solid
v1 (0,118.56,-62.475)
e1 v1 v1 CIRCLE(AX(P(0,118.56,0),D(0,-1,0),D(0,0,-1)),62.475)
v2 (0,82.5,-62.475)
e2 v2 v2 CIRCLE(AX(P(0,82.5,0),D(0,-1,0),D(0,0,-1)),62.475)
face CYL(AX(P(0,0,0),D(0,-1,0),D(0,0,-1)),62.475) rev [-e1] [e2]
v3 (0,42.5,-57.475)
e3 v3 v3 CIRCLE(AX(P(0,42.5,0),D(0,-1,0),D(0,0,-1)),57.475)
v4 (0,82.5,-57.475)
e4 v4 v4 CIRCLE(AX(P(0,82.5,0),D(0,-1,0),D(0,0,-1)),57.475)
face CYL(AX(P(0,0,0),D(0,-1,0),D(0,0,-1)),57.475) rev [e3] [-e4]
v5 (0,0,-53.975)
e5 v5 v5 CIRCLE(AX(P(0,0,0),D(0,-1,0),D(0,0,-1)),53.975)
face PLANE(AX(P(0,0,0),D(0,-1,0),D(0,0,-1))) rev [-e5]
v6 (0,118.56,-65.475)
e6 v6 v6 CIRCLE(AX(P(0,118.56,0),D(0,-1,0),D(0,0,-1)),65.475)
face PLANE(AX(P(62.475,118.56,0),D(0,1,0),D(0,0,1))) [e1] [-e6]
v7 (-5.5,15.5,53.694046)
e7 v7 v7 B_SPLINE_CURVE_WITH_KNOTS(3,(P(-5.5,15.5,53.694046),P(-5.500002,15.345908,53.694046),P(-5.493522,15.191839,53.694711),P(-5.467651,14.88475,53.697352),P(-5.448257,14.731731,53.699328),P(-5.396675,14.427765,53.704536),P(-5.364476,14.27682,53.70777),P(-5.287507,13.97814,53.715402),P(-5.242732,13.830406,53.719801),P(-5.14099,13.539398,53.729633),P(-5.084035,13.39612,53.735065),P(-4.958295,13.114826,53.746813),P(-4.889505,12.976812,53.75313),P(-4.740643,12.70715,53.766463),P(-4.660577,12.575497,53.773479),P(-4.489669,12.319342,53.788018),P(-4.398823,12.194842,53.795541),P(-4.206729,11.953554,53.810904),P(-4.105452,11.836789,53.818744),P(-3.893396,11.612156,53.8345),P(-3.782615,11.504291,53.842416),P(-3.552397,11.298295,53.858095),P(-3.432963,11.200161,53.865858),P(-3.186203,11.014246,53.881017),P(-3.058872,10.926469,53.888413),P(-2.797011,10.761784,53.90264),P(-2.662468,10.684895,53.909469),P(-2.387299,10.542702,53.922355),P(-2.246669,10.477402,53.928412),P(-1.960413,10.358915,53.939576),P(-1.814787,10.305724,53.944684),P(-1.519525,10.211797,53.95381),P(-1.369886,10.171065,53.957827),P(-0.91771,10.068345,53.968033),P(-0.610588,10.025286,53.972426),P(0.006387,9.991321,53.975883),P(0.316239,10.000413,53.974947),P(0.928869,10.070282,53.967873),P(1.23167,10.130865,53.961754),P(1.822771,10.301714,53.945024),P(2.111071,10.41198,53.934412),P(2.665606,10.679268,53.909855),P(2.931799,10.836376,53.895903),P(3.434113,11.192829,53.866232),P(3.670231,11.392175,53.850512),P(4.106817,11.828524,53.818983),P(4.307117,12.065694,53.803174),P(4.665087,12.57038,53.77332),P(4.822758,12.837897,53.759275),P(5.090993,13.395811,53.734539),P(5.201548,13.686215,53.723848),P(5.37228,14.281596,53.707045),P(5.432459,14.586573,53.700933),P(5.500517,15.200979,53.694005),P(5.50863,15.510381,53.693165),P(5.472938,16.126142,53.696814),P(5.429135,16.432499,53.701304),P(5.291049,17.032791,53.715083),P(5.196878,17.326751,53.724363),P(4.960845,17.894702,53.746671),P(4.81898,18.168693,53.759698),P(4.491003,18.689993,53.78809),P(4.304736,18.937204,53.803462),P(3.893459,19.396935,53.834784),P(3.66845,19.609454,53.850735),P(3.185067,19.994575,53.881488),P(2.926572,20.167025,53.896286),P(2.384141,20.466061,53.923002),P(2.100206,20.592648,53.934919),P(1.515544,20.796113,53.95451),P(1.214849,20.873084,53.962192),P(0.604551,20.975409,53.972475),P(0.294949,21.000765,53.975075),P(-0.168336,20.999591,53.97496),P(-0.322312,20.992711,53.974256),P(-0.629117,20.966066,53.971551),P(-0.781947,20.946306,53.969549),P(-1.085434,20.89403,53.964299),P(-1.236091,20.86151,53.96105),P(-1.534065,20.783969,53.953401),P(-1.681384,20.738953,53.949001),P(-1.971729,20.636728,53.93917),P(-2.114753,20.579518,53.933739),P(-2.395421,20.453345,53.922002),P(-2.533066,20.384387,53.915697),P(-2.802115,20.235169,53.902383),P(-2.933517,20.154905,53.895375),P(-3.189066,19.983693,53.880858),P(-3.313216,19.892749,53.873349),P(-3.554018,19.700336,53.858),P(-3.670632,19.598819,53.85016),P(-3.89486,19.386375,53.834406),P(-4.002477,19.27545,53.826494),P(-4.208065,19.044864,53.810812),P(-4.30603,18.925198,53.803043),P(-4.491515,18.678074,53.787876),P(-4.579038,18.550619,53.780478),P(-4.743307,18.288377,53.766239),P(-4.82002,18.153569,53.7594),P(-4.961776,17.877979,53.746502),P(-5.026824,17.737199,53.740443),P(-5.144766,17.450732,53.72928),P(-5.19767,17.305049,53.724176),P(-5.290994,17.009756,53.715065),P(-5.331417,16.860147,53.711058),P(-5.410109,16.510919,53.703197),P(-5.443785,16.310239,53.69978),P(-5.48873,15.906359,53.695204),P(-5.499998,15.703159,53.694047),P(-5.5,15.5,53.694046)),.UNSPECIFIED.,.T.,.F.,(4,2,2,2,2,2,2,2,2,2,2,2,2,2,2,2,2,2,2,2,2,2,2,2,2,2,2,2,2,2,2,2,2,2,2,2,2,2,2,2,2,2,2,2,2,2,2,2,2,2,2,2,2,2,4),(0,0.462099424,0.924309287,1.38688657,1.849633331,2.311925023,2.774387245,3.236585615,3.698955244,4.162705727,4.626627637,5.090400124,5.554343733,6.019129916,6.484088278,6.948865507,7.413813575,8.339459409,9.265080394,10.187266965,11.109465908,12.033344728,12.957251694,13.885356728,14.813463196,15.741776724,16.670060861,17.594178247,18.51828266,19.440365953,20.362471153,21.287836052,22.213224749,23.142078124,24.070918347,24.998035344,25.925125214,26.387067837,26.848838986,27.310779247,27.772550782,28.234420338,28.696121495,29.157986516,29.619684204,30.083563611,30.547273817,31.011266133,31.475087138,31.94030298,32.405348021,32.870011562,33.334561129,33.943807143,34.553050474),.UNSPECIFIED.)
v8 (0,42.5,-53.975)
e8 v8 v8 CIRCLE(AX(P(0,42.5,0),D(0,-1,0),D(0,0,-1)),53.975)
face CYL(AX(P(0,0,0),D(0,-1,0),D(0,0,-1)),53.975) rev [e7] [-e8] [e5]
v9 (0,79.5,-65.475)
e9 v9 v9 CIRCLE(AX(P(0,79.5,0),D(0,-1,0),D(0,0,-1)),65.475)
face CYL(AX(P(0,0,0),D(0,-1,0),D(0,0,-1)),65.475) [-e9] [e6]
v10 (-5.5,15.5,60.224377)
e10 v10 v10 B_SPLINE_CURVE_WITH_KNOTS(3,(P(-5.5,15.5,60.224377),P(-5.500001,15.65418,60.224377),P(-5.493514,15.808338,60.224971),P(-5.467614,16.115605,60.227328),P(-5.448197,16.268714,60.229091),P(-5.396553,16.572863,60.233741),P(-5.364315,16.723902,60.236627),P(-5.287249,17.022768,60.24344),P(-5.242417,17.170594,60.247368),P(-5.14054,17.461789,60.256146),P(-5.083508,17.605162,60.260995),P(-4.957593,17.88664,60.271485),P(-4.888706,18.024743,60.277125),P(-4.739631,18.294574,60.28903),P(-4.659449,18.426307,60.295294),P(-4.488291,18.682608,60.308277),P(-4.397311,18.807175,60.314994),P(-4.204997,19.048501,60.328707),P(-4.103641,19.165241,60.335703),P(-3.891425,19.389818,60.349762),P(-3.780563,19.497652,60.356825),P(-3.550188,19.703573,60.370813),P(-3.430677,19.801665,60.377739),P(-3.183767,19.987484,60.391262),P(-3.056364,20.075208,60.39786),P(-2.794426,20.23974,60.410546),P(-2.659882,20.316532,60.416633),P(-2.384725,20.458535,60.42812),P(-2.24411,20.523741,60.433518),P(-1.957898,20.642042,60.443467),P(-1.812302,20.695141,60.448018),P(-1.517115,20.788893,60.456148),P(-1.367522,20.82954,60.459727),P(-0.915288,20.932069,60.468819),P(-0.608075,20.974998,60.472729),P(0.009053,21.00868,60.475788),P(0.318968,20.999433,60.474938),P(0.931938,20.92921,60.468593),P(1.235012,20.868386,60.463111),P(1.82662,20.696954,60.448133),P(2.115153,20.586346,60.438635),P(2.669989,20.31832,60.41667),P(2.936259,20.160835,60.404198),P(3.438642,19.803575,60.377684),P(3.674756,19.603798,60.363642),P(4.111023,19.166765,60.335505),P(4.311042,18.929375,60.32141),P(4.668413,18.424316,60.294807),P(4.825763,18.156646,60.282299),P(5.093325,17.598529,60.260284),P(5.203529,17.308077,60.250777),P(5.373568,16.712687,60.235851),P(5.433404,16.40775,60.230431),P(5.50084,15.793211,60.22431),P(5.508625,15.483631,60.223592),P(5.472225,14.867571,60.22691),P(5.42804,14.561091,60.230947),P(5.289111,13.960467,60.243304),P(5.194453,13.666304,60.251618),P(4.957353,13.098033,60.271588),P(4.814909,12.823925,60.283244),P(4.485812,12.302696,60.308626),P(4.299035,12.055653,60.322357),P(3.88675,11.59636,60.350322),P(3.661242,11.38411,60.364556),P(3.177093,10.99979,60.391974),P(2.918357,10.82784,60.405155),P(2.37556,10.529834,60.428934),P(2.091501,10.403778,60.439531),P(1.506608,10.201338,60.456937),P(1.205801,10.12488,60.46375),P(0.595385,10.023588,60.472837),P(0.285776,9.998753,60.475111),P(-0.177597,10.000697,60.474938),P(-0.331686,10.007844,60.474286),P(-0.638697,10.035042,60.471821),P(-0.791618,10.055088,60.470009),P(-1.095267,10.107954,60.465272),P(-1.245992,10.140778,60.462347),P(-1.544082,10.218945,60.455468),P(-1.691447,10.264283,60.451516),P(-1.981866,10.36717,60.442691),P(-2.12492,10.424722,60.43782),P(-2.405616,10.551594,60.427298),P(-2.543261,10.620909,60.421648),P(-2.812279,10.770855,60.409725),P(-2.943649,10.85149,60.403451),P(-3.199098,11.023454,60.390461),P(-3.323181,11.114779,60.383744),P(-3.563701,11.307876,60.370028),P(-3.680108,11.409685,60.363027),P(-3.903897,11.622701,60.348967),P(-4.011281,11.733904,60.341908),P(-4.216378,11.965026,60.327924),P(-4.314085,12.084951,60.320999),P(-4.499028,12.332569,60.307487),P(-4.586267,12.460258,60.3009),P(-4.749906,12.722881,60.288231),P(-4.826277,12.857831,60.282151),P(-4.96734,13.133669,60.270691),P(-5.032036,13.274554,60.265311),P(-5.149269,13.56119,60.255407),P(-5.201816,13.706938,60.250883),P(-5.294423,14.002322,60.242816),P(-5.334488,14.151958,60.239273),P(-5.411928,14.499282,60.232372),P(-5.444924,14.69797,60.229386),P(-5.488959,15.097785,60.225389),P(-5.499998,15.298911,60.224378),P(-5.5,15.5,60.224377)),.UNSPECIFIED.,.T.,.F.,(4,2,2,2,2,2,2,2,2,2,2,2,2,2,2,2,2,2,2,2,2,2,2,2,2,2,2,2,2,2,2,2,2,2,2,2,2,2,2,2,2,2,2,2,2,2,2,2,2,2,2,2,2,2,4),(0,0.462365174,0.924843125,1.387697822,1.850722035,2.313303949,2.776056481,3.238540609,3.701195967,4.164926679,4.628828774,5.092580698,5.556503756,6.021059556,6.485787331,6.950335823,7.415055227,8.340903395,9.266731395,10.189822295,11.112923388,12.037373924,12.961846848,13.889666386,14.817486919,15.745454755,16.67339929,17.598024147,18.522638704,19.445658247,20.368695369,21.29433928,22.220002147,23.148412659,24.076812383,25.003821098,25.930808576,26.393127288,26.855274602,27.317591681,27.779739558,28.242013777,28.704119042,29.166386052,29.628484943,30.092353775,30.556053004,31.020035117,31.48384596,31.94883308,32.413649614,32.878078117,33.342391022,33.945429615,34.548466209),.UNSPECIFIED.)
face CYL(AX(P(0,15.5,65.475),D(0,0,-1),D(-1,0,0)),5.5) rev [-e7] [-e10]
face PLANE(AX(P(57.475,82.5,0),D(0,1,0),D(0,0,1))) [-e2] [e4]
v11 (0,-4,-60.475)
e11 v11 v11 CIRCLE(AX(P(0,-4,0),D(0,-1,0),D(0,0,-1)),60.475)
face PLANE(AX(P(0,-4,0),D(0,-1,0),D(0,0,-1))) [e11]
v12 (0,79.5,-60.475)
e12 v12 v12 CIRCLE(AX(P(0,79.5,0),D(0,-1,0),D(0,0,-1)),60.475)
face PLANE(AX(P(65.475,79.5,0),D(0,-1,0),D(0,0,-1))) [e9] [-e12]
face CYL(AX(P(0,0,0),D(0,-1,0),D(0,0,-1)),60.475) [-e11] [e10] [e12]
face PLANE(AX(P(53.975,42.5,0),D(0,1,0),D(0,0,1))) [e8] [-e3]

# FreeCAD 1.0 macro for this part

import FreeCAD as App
import Part
import Sketcher

V = App.Vector

doc = App.newDocument("Part")
body = doc.addObject("PartDesign::Body", "Body")

# Sketch on XY plane
sketch1 = body.newObject("Sketcher::SketchObject", "Sketch")
sketch1.AttachmentSupport = (doc.getObject("XY_Plane"), [""])
sketch1.MapMode = "FlatFace"
sketch1.addGeometry(Part.LineSegment(V(54, 42.5, 0), V(54, 0, 0)), False)
sketch1.addGeometry(Part.LineSegment(V(54, 0, 0), V(60.5, 0, 0)), False)
sketch1.addGeometry(Part.LineSegment(V(60.5, 0, 0), V(60.5, 79.5, 0)), False)
sketch1.addGeometry(Part.LineSegment(V(60.5, 79.5, 0), V(65.5, 79.5, 0)), False)
sketch1.addGeometry(Part.LineSegment(V(65.5, 79.5, 0), V(65.5, 118.6, 0)), False)
sketch1.addGeometry(Part.LineSegment(V(65.5, 118.6, 0), V(62.5, 118.6, 0)), False)
sketch1.addGeometry(Part.LineSegment(V(62.5, 118.6, 0), V(62.5, 82.5, 0)), False)
sketch1.addGeometry(Part.LineSegment(V(62.5, 82.5, 0), V(57.5, 82.5, 0)), False)
sketch1.addGeometry(Part.LineSegment(V(57.5, 82.5, 0), V(57.5, 42.5, 0)), False)
sketch1.addGeometry(Part.LineSegment(V(57.5, 42.5, 0), V(54, 42.5, 0)), False)
sketch1.addConstraint(Sketcher.Constraint("Coincident", 0, 2, 1, 1))
sketch1.addConstraint(Sketcher.Constraint("Coincident", 1, 2, 2, 1))
sketch1.addConstraint(Sketcher.Constraint("Coincident", 2, 2, 3, 1))
sketch1.addConstraint(Sketcher.Constraint("Coincident", 3, 2, 4, 1))
sketch1.addConstraint(Sketcher.Constraint("Coincident", 4, 2, 5, 1))
sketch1.addConstraint(Sketcher.Constraint("Coincident", 5, 2, 6, 1))
sketch1.addConstraint(Sketcher.Constraint("Coincident", 6, 2, 7, 1))
sketch1.addConstraint(Sketcher.Constraint("Coincident", 7, 2, 8, 1))
sketch1.addConstraint(Sketcher.Constraint("Coincident", 8, 2, 9, 1))
sketch1.addConstraint(Sketcher.Constraint("Coincident", 9, 2, 0, 1))
sketch1.addConstraint(Sketcher.Constraint("Vertical", 0))
sketch1.addConstraint(Sketcher.Constraint("Horizontal", 1))
sketch1.addConstraint(Sketcher.Constraint("Vertical", 2))
sketch1.addConstraint(Sketcher.Constraint("Horizontal", 3))
sketch1.addConstraint(Sketcher.Constraint("Vertical", 4))
sketch1.addConstraint(Sketcher.Constraint("Horizontal", 5))
sketch1.addConstraint(Sketcher.Constraint("Vertical", 6))
sketch1.addConstraint(Sketcher.Constraint("Horizontal", 7))
sketch1.addConstraint(Sketcher.Constraint("Vertical", 8))
sketch1.addConstraint(Sketcher.Constraint("Horizontal", 9))
sketch1.addConstraint(Sketcher.Constraint("PointOnObject", 0, 2, -1))
sketch1.addConstraint(Sketcher.Constraint("Equal", 3, 7))
sketch1.addConstraint(Sketcher.Constraint("DistanceX", 3, 1, 3, 2, 5.0))
sketch1.addConstraint(Sketcher.Constraint("DistanceX", 5, 2, 5, 1, 3.0))
sketch1.addConstraint(Sketcher.Constraint("DistanceY", 8, 2, 8, 1, 40.0))
sketch1.addConstraint(Sketcher.Constraint("DistanceX", 1, 1, 1, 2, 6.5))
sketch1.addConstraint(Sketcher.Constraint("DistanceY", 0, 2, 0, 1, 42.5))
sketch1.addConstraint(Sketcher.Constraint("DistanceY", 2, 1, 2, 2, 79.5))
sketch1.addConstraint(Sketcher.Constraint("DistanceY", 4, 1, 4, 2, 39.06))
sketch1.addConstraint(Sketcher.Constraint("DistanceX", -1, 1, 0, 2, 53.975))
revolution = body.newObject("PartDesign::Revolution", "Revolution")
revolution.Profile = sketch1
revolution.ReferenceAxis = (sketch1, ["V_Axis"])
revolution.Angle = 360

# Sketch on XZ plane
sketch2 = body.newObject("Sketcher::SketchObject", "Sketch001")
sketch2.AttachmentSupport = (doc.getObject("XZ_Plane"), [""])
sketch2.MapMode = "FlatFace"
sketch2.AttachmentOffset = App.Placement(V(0, 0, 4), App.Rotation())
sketch2.addGeometry(Part.Circle(V(0, 0, 0), V(0, 0, 1), 60), False)
sketch2.addConstraint(Sketcher.Constraint("Coincident", 0, 3, -1, 1))
sketch2.addConstraint(Sketcher.Constraint("Diameter", 0, 120.95))
pad1 = body.newObject("PartDesign::Pad", "Pad")
pad1.Profile = sketch2
pad1.Length = 4
pad1.Reversed = True

# Sketch on XY plane
sketch3 = body.newObject("Sketcher::SketchObject", "Sketch002")
sketch3.AttachmentSupport = (doc.getObject("XY_Plane"), [""])
sketch3.MapMode = "FlatFace"
sketch3.addGeometry(Part.Circle(V(0, 16, 0), V(0, 0, 1), 6), False)
sketch3.addConstraint(Sketcher.Constraint("PointOnObject", 0, 3, -2))
sketch3.addConstraint(Sketcher.Constraint("Diameter", 0, 11.0))
sketch3.addConstraint(Sketcher.Constraint("DistanceY", -1, 1, 0, 3, 15.5))
pocket1 = body.newObject("PartDesign::Pocket", "Pocket")
pocket1.Profile = sketch3
pocket1.Type = "TwoLengths"
pocket1.Length = 151.434121
pocket1.Length2 = 4
pocket1.Reversed = True

doc.recompute()
